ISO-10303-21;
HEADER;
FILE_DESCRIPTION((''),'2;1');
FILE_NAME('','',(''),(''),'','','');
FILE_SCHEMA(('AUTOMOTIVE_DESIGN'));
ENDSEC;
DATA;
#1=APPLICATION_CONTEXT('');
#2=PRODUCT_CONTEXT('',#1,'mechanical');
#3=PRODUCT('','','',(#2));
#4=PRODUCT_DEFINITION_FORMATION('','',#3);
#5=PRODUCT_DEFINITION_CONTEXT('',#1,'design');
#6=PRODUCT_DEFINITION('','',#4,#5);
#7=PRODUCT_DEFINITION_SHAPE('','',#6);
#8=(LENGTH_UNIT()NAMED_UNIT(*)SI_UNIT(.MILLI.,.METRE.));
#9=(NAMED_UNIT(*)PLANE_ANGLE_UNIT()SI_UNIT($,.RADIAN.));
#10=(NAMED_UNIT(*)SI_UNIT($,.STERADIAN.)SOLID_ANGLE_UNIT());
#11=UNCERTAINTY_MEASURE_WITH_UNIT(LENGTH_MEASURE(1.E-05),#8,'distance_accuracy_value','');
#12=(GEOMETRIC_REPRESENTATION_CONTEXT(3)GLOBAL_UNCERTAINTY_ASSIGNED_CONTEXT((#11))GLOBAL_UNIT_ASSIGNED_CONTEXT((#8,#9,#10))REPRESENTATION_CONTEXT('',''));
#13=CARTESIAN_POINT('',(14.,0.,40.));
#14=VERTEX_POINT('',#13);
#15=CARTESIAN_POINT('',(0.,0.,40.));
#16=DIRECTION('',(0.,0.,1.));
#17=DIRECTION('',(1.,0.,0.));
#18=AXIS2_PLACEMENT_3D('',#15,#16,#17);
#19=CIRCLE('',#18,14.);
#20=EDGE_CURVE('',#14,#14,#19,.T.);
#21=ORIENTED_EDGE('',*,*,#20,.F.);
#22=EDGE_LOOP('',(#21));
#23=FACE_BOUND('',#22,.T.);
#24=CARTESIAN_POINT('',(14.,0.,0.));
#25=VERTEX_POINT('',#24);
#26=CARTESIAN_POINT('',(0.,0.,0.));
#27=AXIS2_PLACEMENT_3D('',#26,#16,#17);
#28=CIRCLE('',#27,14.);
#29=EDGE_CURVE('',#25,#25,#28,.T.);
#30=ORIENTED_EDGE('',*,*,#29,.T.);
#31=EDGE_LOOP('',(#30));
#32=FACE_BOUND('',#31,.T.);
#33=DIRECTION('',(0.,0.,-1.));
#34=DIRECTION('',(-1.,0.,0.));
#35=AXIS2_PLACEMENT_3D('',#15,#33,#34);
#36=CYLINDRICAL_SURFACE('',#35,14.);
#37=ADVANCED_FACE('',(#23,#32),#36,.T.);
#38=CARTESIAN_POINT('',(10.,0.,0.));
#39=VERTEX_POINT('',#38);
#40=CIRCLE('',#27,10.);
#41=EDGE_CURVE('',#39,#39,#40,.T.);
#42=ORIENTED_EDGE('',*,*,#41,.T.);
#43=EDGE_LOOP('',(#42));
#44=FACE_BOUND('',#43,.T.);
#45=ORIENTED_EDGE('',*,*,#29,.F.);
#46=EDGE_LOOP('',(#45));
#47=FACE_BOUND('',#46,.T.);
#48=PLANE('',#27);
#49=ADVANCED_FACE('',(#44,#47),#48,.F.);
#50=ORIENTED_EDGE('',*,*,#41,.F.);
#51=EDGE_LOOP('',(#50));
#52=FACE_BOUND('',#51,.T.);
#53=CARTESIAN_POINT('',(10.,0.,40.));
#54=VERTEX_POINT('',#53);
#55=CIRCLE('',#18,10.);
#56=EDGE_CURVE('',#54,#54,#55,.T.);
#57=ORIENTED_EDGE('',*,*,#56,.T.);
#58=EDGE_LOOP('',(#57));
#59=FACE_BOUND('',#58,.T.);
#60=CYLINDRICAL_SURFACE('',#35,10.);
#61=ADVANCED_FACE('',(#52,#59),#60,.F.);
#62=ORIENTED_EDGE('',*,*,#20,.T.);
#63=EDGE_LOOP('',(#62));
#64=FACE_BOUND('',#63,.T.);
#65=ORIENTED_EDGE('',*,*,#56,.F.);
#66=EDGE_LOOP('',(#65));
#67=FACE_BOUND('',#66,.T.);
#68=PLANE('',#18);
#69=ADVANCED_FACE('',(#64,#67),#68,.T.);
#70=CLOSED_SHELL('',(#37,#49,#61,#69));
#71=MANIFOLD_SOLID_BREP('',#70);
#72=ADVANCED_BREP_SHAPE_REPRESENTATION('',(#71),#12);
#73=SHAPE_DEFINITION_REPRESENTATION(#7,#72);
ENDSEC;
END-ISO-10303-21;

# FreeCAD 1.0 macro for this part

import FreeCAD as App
import Part
import Sketcher

V = App.Vector

doc = App.newDocument("Part")
body = doc.addObject("PartDesign::Body", "Body")

sketch1 = body.newObject("Sketcher::SketchObject", "Sketch")
sketch1.AttachmentSupport = (doc.getObject("XY_Plane"), [""])
sketch1.MapMode = "FlatFace"
sketch1.addGeometry(Part.Circle(V(0, 0, 0), V(0, 0, 1), 14), False)
sketch1.addGeometry(Part.Circle(V(0, 0, 0), V(0, 0, 1), 10), False)
sketch1.addConstraint(Sketcher.Constraint("Coincident", 0, 3, -1, 1))
sketch1.addConstraint(Sketcher.Constraint("Coincident", 1, 3, -1, 1))
sketch1.addConstraint(Sketcher.Constraint("Diameter", 0, 28.0))
sketch1.addConstraint(Sketcher.Constraint("Diameter", 1, 20.0))
pad1 = body.newObject("PartDesign::Pad", "Pad")
pad1.Profile = sketch1
pad1.Length = 40

doc.recompute()
